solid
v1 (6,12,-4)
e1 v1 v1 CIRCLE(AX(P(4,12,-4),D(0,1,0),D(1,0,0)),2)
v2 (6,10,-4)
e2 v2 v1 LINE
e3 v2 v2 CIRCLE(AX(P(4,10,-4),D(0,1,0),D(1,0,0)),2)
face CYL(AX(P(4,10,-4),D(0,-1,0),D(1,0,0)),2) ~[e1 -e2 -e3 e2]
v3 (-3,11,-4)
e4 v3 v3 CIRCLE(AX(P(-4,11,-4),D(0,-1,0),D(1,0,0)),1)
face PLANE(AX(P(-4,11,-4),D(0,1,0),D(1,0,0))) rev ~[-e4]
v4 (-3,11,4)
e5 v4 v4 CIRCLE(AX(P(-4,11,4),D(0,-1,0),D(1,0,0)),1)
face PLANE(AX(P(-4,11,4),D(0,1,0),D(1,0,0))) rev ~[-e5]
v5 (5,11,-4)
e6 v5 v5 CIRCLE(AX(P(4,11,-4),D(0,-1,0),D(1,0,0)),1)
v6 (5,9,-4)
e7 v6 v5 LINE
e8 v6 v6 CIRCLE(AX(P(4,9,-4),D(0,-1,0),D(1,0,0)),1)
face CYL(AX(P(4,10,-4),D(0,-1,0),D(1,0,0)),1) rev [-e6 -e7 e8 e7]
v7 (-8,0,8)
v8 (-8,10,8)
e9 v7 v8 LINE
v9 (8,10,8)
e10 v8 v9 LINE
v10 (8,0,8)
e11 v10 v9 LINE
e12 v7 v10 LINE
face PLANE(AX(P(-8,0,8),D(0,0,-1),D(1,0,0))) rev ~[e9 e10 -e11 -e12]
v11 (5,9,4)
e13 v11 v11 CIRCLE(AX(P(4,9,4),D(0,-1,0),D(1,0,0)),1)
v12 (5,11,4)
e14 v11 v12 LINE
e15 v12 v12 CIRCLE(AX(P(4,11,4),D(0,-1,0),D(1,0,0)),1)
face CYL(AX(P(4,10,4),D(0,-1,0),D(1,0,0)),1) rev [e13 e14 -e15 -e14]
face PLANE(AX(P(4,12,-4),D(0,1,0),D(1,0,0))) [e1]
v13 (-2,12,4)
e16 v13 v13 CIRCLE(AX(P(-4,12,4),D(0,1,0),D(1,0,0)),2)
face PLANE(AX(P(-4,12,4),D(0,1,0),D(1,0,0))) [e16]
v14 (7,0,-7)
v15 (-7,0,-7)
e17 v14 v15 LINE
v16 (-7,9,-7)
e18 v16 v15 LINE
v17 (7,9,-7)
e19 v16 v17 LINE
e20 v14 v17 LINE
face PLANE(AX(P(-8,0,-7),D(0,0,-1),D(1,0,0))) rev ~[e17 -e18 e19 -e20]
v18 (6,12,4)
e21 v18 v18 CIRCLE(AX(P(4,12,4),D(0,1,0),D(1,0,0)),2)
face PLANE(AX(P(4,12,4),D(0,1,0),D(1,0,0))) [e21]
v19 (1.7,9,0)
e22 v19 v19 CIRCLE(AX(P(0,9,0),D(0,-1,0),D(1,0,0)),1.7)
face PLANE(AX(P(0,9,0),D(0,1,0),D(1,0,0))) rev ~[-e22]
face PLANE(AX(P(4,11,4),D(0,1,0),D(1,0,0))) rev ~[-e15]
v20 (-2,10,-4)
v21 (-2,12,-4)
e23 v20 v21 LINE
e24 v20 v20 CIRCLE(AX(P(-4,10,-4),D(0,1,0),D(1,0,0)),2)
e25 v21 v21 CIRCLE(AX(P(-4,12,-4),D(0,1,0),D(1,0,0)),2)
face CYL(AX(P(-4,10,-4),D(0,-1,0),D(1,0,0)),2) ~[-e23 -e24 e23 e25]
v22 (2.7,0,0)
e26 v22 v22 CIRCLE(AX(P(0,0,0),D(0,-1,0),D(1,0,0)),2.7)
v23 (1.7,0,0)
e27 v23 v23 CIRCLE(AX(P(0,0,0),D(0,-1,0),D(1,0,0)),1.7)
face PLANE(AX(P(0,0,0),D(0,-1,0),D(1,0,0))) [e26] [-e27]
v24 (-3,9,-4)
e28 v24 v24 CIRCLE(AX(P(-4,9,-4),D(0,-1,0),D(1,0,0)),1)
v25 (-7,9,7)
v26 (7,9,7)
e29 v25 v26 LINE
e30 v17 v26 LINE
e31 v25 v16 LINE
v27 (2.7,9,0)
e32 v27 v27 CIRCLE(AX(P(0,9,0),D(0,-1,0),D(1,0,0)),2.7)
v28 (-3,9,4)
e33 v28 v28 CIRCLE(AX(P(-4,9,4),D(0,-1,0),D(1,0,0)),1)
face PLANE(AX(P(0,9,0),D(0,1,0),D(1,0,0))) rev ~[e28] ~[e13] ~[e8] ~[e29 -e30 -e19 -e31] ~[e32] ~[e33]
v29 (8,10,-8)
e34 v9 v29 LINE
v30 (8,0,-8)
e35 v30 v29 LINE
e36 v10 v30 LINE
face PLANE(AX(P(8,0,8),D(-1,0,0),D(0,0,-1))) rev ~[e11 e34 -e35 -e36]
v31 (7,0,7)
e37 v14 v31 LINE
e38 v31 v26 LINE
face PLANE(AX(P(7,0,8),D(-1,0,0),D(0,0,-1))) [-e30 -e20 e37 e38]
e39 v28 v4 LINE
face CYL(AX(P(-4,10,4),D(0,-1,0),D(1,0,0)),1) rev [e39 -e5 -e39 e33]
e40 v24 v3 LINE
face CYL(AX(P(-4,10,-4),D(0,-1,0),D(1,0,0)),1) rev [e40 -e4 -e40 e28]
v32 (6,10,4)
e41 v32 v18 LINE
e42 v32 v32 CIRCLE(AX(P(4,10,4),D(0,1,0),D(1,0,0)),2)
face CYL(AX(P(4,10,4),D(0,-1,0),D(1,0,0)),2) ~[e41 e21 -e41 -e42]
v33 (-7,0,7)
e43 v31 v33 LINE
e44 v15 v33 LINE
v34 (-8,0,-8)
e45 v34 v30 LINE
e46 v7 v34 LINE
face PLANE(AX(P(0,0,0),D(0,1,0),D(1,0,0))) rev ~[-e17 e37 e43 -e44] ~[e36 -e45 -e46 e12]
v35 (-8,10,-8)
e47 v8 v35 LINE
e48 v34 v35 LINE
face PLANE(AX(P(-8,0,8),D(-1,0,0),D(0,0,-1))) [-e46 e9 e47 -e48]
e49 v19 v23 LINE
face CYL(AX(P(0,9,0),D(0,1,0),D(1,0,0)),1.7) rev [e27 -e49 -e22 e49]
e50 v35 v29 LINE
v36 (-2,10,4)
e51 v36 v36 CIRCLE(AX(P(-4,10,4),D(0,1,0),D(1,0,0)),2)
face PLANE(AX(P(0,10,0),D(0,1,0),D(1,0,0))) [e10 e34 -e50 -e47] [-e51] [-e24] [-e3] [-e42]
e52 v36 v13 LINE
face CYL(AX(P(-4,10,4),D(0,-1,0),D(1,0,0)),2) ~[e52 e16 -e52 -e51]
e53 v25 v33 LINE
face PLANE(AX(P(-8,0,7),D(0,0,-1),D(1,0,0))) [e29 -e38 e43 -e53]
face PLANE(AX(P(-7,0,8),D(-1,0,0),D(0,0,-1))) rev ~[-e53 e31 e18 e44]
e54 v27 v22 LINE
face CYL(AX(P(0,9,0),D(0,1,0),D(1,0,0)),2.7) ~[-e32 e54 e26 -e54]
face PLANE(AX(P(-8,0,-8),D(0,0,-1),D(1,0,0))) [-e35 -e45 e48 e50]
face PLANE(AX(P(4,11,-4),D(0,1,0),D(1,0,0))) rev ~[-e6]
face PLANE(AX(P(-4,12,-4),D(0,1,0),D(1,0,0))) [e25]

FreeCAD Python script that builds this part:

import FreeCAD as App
import Part
import Sketcher

V = App.Vector
Q = App.Units.Quantity


def faces_at(feature, points):
    """Names of the faces that lie closest to the given points."""
    faces = feature.Shape.Faces
    near = lambda p: min(range(len(faces)), key=lambda i: faces[i].distToShape(Part.Vertex(*p))[0])
    return sorted({f"Face{near(p) + 1}" for p in points})


def add_polygon(sketch, points):
    """Adds a closed chain of lines whose ends are joined by coincident constraints."""
    first, n = sketch.GeometryCount, len(points)
    for a, b in zip(points, points[1:] + points[:1]):
        sketch.addGeometry(Part.LineSegment(App.Vector(*a, 0), App.Vector(*b, 0)), False)
    for i in range(n):
        sketch.addConstraint(Sketcher.Constraint("Coincident", first + i, 2, first + (i + 1) % n, 1))

doc = App.newDocument("Part")
body = doc.addObject("PartDesign::Body", "Body")

# Sketch on XZ plane
sketch1 = body.newObject("Sketcher::SketchObject", "Sketch")
sketch1.AttachmentSupport = (doc.getObject("XZ_Plane"), [""])
sketch1.MapMode = "FlatFace"
add_polygon(sketch1, [(-8, -8), (-8, 8), (8, 8), (8, -8)])  # lines 0-3
sketch1.addConstraint([
    Sketcher.Constraint("Vertical", 0),
    Sketcher.Constraint("Horizontal", 1),
    Sketcher.Constraint("Vertical", 2),
    Sketcher.Constraint("Horizontal", 3),
    Sketcher.Constraint("Symmetric", 0, 2, 2, 2, -1, 1),
    Sketcher.Constraint("Equal", 3, 0),
    Sketcher.Constraint("DistanceX", 1, 1, 1, 2, Q("16 mm")),
])
pad1 = body.newObject("PartDesign::Pad", "Pad")
pad1.Profile = sketch1
pad1.Length = 10
pad1.Reversed = True

# Sketch on XZ plane
sketch2 = body.newObject("Sketcher::SketchObject", "Sketch001")
sketch2.AttachmentSupport = (doc.getObject("XZ_Plane"), [""])
sketch2.MapMode = "FlatFace"
sketch2.AttachmentOffset = App.Placement(V(0, 0, -10), App.Rotation())
sketch2.addGeometry([
    Part.Circle(V(-4, -4, 0), V(0, 0, 1), 2),
    Part.Circle(V(4, -4, 0), V(0, 0, 1), 2),
    Part.Circle(V(4, 4, 0), V(0, 0, 1), 2),
    Part.Circle(V(-4, 4, 0), V(0, 0, 1), 2),
], False)
sketch2.addConstraint([
    Sketcher.Constraint("Equal", 0, 1),
    Sketcher.Constraint("Equal", 1, 2),
    Sketcher.Constraint("Equal", 2, 3),
    Sketcher.Constraint("Symmetric", 0, 3, 2, 3, -1, 1),
    Sketcher.Constraint("Symmetric", 1, 3, 3, 3, -1, 1),
    Sketcher.Constraint("Symmetric", 0, 3, 1, 3, -2),
    Sketcher.Constraint("Diameter", 0, Q("4 mm")),
    Sketcher.Constraint("DistanceX", 0, 3, -1, 1, Q("4 mm")),
    Sketcher.Constraint("DistanceY", 0, 3, -1, 1, Q("4 mm")),
])
pad2 = body.newObject("PartDesign::Pad", "Pad001")
pad2.Profile = sketch2
pad2.Length = 2
pad2.Reversed = True
doc.recompute()

thickness = body.newObject("PartDesign::Thickness", "Thickness")
thickness.Base = (pad2, faces_at(pad2, [(0, 0, 0)]))
thickness.Value = 1
thickness.Reversed = True
thickness.Join = "Intersection"

# Sketch on XZ plane
sketch3 = body.newObject("Sketcher::SketchObject", "Sketch002")
sketch3.AttachmentSupport = (doc.getObject("XZ_Plane"), [""])
sketch3.MapMode = "FlatFace"
sketch3.AttachmentOffset = App.Placement(V(0, 0, -9), App.Rotation())
sketch3.addGeometry([
    Part.Circle(V(0, 0, 0), V(0, 0, 1), 2.7),
    Part.Circle(V(0, 0, 0), V(0, 0, 1), 1.7),
], False)
sketch3.addConstraint([
    Sketcher.Constraint("Coincident", 0, 3, -1, 1),
    Sketcher.Constraint("Coincident", 1, 3, -1, 1),
    Sketcher.Constraint("Diameter", 0, Q("5.4 mm")),
    Sketcher.Constraint("Diameter", 1, Q("3.4 mm")),
])
pad3 = body.newObject("PartDesign::Pad", "Pad002")
pad3.Profile = sketch3
pad3.Length = 9

doc.recompute()
